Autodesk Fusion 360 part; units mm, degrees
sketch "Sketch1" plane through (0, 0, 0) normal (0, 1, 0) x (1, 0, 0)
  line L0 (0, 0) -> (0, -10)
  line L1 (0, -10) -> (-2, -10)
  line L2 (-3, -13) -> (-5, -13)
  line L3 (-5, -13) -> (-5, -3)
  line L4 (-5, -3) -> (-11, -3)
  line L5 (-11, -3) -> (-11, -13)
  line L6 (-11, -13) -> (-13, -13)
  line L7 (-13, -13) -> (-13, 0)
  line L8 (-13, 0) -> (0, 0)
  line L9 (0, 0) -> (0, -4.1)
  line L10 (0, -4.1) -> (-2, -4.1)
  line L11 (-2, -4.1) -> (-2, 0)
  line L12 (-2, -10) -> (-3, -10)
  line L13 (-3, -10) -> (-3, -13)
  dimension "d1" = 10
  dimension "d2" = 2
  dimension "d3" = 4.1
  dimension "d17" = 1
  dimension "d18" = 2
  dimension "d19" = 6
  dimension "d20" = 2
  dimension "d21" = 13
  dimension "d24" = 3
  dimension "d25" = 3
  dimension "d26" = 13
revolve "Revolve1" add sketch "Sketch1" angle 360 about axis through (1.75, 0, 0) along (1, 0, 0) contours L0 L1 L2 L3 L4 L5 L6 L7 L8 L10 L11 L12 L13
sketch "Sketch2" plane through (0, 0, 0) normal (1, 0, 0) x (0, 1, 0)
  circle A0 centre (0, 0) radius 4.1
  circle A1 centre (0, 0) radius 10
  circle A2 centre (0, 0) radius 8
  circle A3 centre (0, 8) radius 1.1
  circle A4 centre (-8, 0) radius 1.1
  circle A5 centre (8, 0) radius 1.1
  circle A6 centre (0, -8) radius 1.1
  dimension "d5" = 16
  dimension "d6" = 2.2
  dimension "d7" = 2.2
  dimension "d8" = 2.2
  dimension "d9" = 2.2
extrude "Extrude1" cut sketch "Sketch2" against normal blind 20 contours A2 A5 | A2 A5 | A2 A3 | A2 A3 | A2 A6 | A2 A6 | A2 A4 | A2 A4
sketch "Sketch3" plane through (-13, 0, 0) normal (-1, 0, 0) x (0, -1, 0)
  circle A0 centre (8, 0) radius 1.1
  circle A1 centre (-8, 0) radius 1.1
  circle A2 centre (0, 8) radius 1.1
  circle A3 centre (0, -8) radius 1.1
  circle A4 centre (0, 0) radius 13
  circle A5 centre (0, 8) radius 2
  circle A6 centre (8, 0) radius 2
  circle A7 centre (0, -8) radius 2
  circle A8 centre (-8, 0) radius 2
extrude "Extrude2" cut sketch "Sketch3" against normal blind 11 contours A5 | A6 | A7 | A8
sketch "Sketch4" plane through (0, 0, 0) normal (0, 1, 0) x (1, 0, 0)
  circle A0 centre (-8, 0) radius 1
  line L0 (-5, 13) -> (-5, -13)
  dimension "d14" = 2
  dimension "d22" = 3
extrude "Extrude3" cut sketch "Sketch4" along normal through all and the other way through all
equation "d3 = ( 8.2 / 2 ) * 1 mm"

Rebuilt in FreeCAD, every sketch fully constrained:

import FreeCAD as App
import Part
import Sketcher
from FreeCAD import Vector

doc = App.newDocument("Part")
params = doc.addObject("Spreadsheet::Sheet", "Params")
for row, (alias, value) in enumerate([
    ("sketch1_width", "2 mm"),
    ("sketch1_width2", "6 mm"),
    ("sketch1_width3", "3 mm"),
    ("sketch1_height", "13 mm"),
    ("sketch1_height2", "10 mm"),
    ("revolution_angle", "360 deg"),
    ("sketch2_diameter", "2.2 mm"),
    ("pocket1_length", "20 mm"),
    ("sketch3_diameter", "4 mm"),
    ("sketch3_diameter2", "2.2 mm"),
    ("pocket2_length", "11 mm"),
    ("sketch4_diameter", "2 mm"),
], start=1):
    params.set(f"A{row}", alias)
    params.set(f"B{row}", "=" + value)
    params.setAlias(f"B{row}", alias)

body = doc.addObject("PartDesign::Body", "Body")

sketch1 = body.newObject("Sketcher::SketchObject", "Sketch")
sketch1.AttachmentSupport = (doc.getObject("XZ_Plane"), [""])
sketch1.MapMode = "FlatFace"
sketch1.addGeometry(Part.LineSegment(Vector(0, 10, 0), Vector(0, 4.1, 0)), False)
sketch1.addGeometry(Part.LineSegment(Vector(0, 4.1, 0), Vector(-2, 4.1, 0)), False)
sketch1.addGeometry(Part.LineSegment(Vector(-2, 4.1, 0), Vector(-2, 0, 0)), False)
sketch1.addGeometry(Part.LineSegment(Vector(-2, 0, 0), Vector(-13, 0, 0)), False)
sketch1.addGeometry(Part.LineSegment(Vector(-13, 0, 0), Vector(-13, 13, 0)), False)
sketch1.addGeometry(Part.LineSegment(Vector(-13, 13, 0), Vector(-11, 13, 0)), False)
sketch1.addGeometry(Part.LineSegment(Vector(-11, 13, 0), Vector(-11, 3, 0)), False)
sketch1.addGeometry(Part.LineSegment(Vector(-11, 3, 0), Vector(-5, 3, 0)), False)
sketch1.addGeometry(Part.LineSegment(Vector(-5, 3, 0), Vector(-5, 13, 0)), False)
sketch1.addGeometry(Part.LineSegment(Vector(-5, 13, 0), Vector(-3, 13, 0)), False)
sketch1.addGeometry(Part.LineSegment(Vector(-3, 13, 0), Vector(-3, 10, 0)), False)
sketch1.addGeometry(Part.LineSegment(Vector(-3, 10, 0), Vector(0, 10, 0)), False)
sketch1.addConstraint(Sketcher.Constraint("Coincident", 0, 2, 1, 1))
sketch1.addConstraint(Sketcher.Constraint("Coincident", 1, 2, 2, 1))
sketch1.addConstraint(Sketcher.Constraint("Coincident", 2, 2, 3, 1))
sketch1.addConstraint(Sketcher.Constraint("Coincident", 3, 2, 4, 1))
sketch1.addConstraint(Sketcher.Constraint("Coincident", 4, 2, 5, 1))
sketch1.addConstraint(Sketcher.Constraint("Coincident", 5, 2, 6, 1))
sketch1.addConstraint(Sketcher.Constraint("Coincident", 6, 2, 7, 1))
sketch1.addConstraint(Sketcher.Constraint("Coincident", 7, 2, 8, 1))
sketch1.addConstraint(Sketcher.Constraint("Coincident", 8, 2, 9, 1))
sketch1.addConstraint(Sketcher.Constraint("Coincident", 9, 2, 10, 1))
sketch1.addConstraint(Sketcher.Constraint("Coincident", 10, 2, 11, 1))
sketch1.addConstraint(Sketcher.Constraint("Coincident", 11, 2, 0, 1))
sketch1.addConstraint(Sketcher.Constraint("Vertical", 0))
sketch1.addConstraint(Sketcher.Constraint("Horizontal", 1))
sketch1.addConstraint(Sketcher.Constraint("Vertical", 2))
sketch1.addConstraint(Sketcher.Constraint("Horizontal", 3))
sketch1.addConstraint(Sketcher.Constraint("Vertical", 4))
sketch1.addConstraint(Sketcher.Constraint("Horizontal", 5))
sketch1.addConstraint(Sketcher.Constraint("Vertical", 6))
sketch1.addConstraint(Sketcher.Constraint("Horizontal", 7))
sketch1.addConstraint(Sketcher.Constraint("Vertical", 8))
sketch1.addConstraint(Sketcher.Constraint("Horizontal", 9))
sketch1.addConstraint(Sketcher.Constraint("Vertical", 10))
sketch1.addConstraint(Sketcher.Constraint("Horizontal", 11))
sketch1.addConstraint(Sketcher.Constraint("PointOnObject", 0, 2, -2))
sketch1.addConstraint(Sketcher.Constraint("PointOnObject", 2, 2, -1))
sketch1.addConstraint(Sketcher.Constraint("Horizontal", 5, 2, 8, 2))
sketch1.addConstraint(Sketcher.Constraint("Equal", 1, 5))
sketch1.addConstraint(Sketcher.Constraint("Equal", 5, 9))
sketch1.addConstraint(Sketcher.Constraint("Equal", 11, 10))
sketch1.addConstraint(Sketcher.Constraint("DistanceX", 1, 2, 1, 1, 2.0))
sketch1.addConstraint(Sketcher.Constraint("DistanceX", 7, 1, 7, 2, 6.0))
sketch1.addConstraint(Sketcher.Constraint("DistanceX", 11, 1, 11, 2, 3.0))
sketch1.addConstraint(Sketcher.Constraint("DistanceY", 4, 1, 4, 2, 13.0))
sketch1.addConstraint(Sketcher.Constraint("DistanceY", 6, 2, 6, 1, 10.0))
sketch1.addConstraint(Sketcher.Constraint("DistanceY", 2, 2, 2, 1, 4.1))
sketch1.setExpression("Constraints[30]", "Params.sketch1_width")
sketch1.setExpression("Constraints[31]", "Params.sketch1_width2")
sketch1.setExpression("Constraints[32]", "Params.sketch1_width3")
sketch1.setExpression("Constraints[33]", "Params.sketch1_height")
sketch1.setExpression("Constraints[34]", "Params.sketch1_height2")
revolution = body.newObject("PartDesign::Revolution", "Revolution")
revolution.Profile = sketch1
revolution.ReferenceAxis = (sketch1, ["H_Axis"])
revolution.setExpression("Angle", "Params.revolution_angle")

sketch2 = body.newObject("Sketcher::SketchObject", "Sketch001")
sketch2.AttachmentSupport = (doc.getObject("YZ_Plane"), [""])
sketch2.MapMode = "FlatFace"
sketch2.addGeometry(Part.Circle(Vector(8, 0, 0), Vector(0, 0, 1), 1.1), False)
sketch2.addGeometry(Part.Circle(Vector(0, 8, 0), Vector(0, 0, 1), 1.1), False)
sketch2.addGeometry(Part.Circle(Vector(0, -8, 0), Vector(0, 0, 1), 1.1), False)
sketch2.addGeometry(Part.Circle(Vector(-8, 0, 0), Vector(0, 0, 1), 1.1), False)
sketch2.addConstraint(Sketcher.Constraint("Equal", 0, 1))
sketch2.addConstraint(Sketcher.Constraint("Equal", 1, 2))
sketch2.addConstraint(Sketcher.Constraint("Equal", 2, 3))
sketch2.addConstraint(Sketcher.Constraint("Symmetric", 1, 3, 2, 3, -1, 1))
sketch2.addConstraint(Sketcher.Constraint("Symmetric", 0, 3, 3, 3, -1, 1))
sketch2.addConstraint(Sketcher.Constraint("PointOnObject", 0, 3, -1))
sketch2.addConstraint(Sketcher.Constraint("PointOnObject", 1, 3, -2))
sketch2.addConstraint(Sketcher.Constraint("Diameter", 0, 2.2))
sketch2.addConstraint(Sketcher.Constraint("DistanceY", 2, 3, 1, 3, 16.0))
sketch2.addConstraint(Sketcher.Constraint("DistanceX", 3, 3, 0, 3, 16.0))
sketch2.setExpression("Constraints[7]", "Params.sketch2_diameter")
pocket1 = body.newObject("PartDesign::Pocket", "Pocket")
pocket1.Profile = sketch2
pocket1.setExpression("Length", "Params.pocket1_length")

sketch3 = body.newObject("Sketcher::SketchObject", "Sketch002")
sketch3.AttachmentSupport = (doc.getObject("YZ_Plane"), [""])
sketch3.MapMode = "FlatFace"
sketch3.AttachmentOffset = App.Placement(Vector(0, 0, -13), App.Rotation())
sketch3.addGeometry(Part.Circle(Vector(0, 8, 0), Vector(0, 0, 1), 2), False)
sketch3.addGeometry(Part.Circle(Vector(0, 8, 0), Vector(0, 0, 1), 1.1), False)
sketch3.addGeometry(Part.Circle(Vector(-8, 0, 0), Vector(0, 0, 1), 2), False)
sketch3.addGeometry(Part.Circle(Vector(-8, 0, 0), Vector(0, 0, 1), 1.1), False)
sketch3.addGeometry(Part.Circle(Vector(0, -8, 0), Vector(0, 0, 1), 2), False)
sketch3.addGeometry(Part.Circle(Vector(0, -8, 0), Vector(0, 0, 1), 1.1), False)
sketch3.addGeometry(Part.Circle(Vector(8, 0, 0), Vector(0, 0, 1), 2), False)
sketch3.addGeometry(Part.Circle(Vector(8, 0, 0), Vector(0, 0, 1), 1.1), False)
sketch3.addConstraint(Sketcher.Constraint("Coincident", 1, 3, 0, 3))
sketch3.addConstraint(Sketcher.Constraint("Coincident", 3, 3, 2, 3))
sketch3.addConstraint(Sketcher.Constraint("Coincident", 5, 3, 4, 3))
sketch3.addConstraint(Sketcher.Constraint("Coincident", 7, 3, 6, 3))
sketch3.addConstraint(Sketcher.Constraint("Equal", 0, 2))
sketch3.addConstraint(Sketcher.Constraint("Equal", 1, 3))
sketch3.addConstraint(Sketcher.Constraint("Equal", 2, 4))
sketch3.addConstraint(Sketcher.Constraint("Equal", 3, 5))
sketch3.addConstraint(Sketcher.Constraint("Equal", 4, 6))
sketch3.addConstraint(Sketcher.Constraint("Equal", 5, 7))
sketch3.addConstraint(Sketcher.Constraint("Symmetric", 0, 3, 4, 3, -1, 1))
sketch3.addConstraint(Sketcher.Constraint("Symmetric", 2, 3, 6, 3, -1, 1))
sketch3.addConstraint(Sketcher.Constraint("PointOnObject", 0, 3, -2))
sketch3.addConstraint(Sketcher.Constraint("PointOnObject", 2, 3, -1))
sketch3.addConstraint(Sketcher.Constraint("Diameter", 0, 4.0))
sketch3.addConstraint(Sketcher.Constraint("Diameter", 1, 2.2))
sketch3.addConstraint(Sketcher.Constraint("DistanceY", -1, 1, 0, 3, 8.0))
sketch3.addConstraint(Sketcher.Constraint("DistanceX", 2, 3, -1, 1, 8.0))
sketch3.setExpression("Constraints[14]", "Params.sketch3_diameter")
sketch3.setExpression("Constraints[15]", "Params.sketch3_diameter2")
pocket2 = body.newObject("PartDesign::Pocket", "Pocket001")
pocket2.Profile = sketch3
pocket2.setExpression("Length", "Params.pocket2_length")
pocket2.Reversed = True

sketch4 = body.newObject("Sketcher::SketchObject", "Sketch003")
sketch4.AttachmentSupport = (doc.getObject("XZ_Plane"), [""])
sketch4.MapMode = "FlatFace"
sketch4.addGeometry(Part.Circle(Vector(-8, 0, 0), Vector(0, 0, 1), 1), False)
sketch4.addConstraint(Sketcher.Constraint("PointOnObject", 0, 3, -1))
sketch4.addConstraint(Sketcher.Constraint("Diameter", 0, 2.0))
sketch4.addConstraint(Sketcher.Constraint("DistanceX", 0, 3, -1, 1, 8.0))
sketch4.setExpression("Constraints[1]", "Params.sketch4_diameter")
pocket3 = body.newObject("PartDesign::Pocket", "Pocket002")
pocket3.Profile = sketch4
pocket3.Type = "ThroughAll"
pocket3.Midplane = True

doc.recompute()
